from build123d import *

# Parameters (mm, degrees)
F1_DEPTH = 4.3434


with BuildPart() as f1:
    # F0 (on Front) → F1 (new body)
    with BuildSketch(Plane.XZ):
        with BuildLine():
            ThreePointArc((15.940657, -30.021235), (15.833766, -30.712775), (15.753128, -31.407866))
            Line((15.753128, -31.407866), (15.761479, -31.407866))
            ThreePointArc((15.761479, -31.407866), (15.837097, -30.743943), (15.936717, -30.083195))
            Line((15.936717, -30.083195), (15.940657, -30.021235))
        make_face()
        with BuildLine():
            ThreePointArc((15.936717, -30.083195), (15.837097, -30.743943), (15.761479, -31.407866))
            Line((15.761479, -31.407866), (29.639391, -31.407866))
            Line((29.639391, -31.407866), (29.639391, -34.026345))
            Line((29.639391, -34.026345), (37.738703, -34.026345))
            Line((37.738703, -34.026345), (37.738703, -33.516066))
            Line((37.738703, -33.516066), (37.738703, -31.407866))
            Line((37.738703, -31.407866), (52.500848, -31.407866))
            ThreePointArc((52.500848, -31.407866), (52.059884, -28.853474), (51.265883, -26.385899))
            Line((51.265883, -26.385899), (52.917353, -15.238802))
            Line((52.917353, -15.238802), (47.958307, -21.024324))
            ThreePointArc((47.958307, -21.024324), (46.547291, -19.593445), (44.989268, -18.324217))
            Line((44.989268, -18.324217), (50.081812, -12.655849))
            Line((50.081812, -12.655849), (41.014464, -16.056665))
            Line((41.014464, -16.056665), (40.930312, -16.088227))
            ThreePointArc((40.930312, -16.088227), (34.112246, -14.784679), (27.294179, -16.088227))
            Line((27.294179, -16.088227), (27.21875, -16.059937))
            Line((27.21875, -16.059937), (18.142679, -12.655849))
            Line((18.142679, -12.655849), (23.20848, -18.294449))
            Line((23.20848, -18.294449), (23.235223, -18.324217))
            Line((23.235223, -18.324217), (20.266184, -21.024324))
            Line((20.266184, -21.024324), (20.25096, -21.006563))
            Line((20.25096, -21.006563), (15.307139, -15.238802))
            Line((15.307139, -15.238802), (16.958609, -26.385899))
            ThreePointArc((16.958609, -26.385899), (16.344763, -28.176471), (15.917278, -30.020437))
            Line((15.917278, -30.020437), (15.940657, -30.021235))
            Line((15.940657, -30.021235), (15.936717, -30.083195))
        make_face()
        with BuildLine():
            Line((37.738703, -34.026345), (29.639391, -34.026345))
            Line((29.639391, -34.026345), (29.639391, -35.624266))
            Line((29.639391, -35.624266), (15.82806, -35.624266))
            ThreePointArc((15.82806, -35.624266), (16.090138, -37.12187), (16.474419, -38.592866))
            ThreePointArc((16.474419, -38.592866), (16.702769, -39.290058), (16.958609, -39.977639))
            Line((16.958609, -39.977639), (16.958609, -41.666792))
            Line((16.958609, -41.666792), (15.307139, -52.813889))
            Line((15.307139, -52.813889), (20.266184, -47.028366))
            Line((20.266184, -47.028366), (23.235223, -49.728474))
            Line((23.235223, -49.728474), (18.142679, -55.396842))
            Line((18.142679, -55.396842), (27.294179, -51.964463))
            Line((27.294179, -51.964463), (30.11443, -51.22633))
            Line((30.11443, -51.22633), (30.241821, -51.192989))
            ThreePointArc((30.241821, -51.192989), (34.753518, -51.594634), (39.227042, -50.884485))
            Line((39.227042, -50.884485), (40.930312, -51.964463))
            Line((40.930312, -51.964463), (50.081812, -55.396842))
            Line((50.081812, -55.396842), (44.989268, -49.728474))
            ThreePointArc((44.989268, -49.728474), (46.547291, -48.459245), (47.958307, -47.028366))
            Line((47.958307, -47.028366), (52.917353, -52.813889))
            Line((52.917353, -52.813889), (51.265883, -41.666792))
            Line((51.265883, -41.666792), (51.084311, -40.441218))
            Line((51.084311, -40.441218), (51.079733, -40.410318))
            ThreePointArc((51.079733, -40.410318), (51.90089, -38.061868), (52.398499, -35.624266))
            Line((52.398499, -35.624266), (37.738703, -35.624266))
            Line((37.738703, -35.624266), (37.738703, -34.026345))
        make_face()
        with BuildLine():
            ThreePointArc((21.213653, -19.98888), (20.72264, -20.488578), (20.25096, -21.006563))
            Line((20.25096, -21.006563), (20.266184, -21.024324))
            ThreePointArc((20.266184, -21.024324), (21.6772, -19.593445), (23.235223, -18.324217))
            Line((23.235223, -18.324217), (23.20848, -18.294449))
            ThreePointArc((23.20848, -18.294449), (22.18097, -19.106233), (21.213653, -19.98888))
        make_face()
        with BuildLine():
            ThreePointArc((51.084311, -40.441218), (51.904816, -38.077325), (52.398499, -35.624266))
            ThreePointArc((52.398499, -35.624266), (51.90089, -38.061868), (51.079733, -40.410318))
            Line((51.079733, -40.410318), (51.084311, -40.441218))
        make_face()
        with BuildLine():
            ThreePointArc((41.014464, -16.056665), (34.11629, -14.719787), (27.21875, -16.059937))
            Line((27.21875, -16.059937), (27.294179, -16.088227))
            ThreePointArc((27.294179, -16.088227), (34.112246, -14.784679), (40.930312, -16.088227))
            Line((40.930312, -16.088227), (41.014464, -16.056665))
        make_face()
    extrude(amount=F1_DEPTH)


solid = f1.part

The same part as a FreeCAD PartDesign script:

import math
import FreeCAD as App
import Part
import Sketcher

V = App.Vector
Q = App.Units.Quantity

doc = App.newDocument("Part")
body = doc.addObject("PartDesign::Body", "Body")

# Sketch on XZ plane
sketch1 = doc.addObject("Sketcher::SketchObject", "Sketch")
body.addObject(sketch1)
sketch1.AttachmentSupport = (doc.XZ_Plane, [""])
sketch1.MapMode = "FlatFace"
sketch1.addGeometry([
    Part.ArcOfCircle(Part.Circle(V(34.15005, -33.189883, 0), V(0, 0, 1), 18.483028), math.radians(170.128705), math.radians(174.467308)),  # 0
    Part.LineSegment(V(15.753128, -31.407866, 0), V(29.639391, -31.407866, 0)),  # 1
    Part.LineSegment(V(29.639391, -31.407866, 0), V(29.639391, -35.624266, 0)),  # 2
    Part.LineSegment(V(29.639391, -35.624266, 0), V(15.82806, -35.624266, 0)),  # 3
    Part.ArcOfCircle(Part.Circle(V(34.149253, -33.189824, 0), V(0, 0, 1), 18.482224), math.radians(-172.431118), math.radians(-163.002066)),  # 4
    Part.ArcOfCircle(Part.Circle(V(34.148866, -33.189979, 0), V(0, 0, 1), 18.481809), math.radians(-163.002174), math.radians(-158.453163)),  # 5
    Part.LineSegment(V(16.958609, -39.977639, 0), V(16.958609, -41.666792, 0)),  # 6
    Part.LineSegment(V(16.958609, -41.666792, 0), V(15.307139, -52.813889, 0)),  # 7
    Part.LineSegment(V(15.307139, -52.813889, 0), V(20.266184, -47.028366, 0)),  # 8
    Part.LineSegment(V(20.266184, -47.028366, 0), V(23.235223, -49.728474, 0)),  # 9
    Part.LineSegment(V(23.235223, -49.728474, 0), V(18.142679, -55.396842, 0)),  # 10
    Part.LineSegment(V(18.142679, -55.396842, 0), V(27.294179, -51.964463, 0)),  # 11
    Part.LineSegment(V(27.294179, -51.964463, 0), V(30.11443, -51.22633, 0)),  # 12
    Part.LineSegment(V(30.11443, -51.22633, 0), V(30.241821, -51.192989, 0)),  # 13
    Part.ArcOfCircle(Part.Circle(V(34.120663, -33.162649, 0), V(0, 0, 1), 18.442846), math.radians(-102.140923), math.radians(-73.926166)),  # 14
    Part.LineSegment(V(39.227042, -50.884485, 0), V(40.930312, -51.964463, 0)),  # 15
    Part.LineSegment(V(40.930312, -51.964463, 0), V(50.081812, -55.396842, 0)),  # 16
    Part.LineSegment(V(50.081812, -55.396842, 0), V(44.989268, -49.728474, 0)),  # 17
    Part.ArcOfCircle(Part.Circle(V(34.112224, -34.785644, 0), V(0, 0, 1), 18.482376), math.radians(-53.948732), math.radians(-41.48315)),  # 18
    Part.LineSegment(V(47.958307, -47.028366, 0), V(52.917353, -52.813889, 0)),  # 19
    Part.LineSegment(V(52.917353, -52.813889, 0), V(51.265883, -41.666792, 0)),  # 20
    Part.LineSegment(V(51.265883, -41.666792, 0), V(51.084311, -40.441218, 0)),  # 21
    Part.ArcOfCircle(Part.Circle(V(34.07414, -33.212659, 0), V(0, 0, 1), 18.482369), math.radians(-23.023313), math.radians(-7.497416)),  # 22
    Part.LineSegment(V(52.398499, -35.624266, 0), V(37.738703, -35.624266, 0)),  # 23
    Part.LineSegment(V(37.738703, -35.624266, 0), V(37.738703, -31.407866, 0)),  # 24
    Part.LineSegment(V(37.738703, -31.407866, 0), V(52.500848, -31.407866, 0)),  # 25
    Part.ArcOfCircle(Part.Circle(V(34.112208, -33.267034, 0), V(0, 0, 1), 18.482386), math.radians(5.773224), math.radians(21.858012)),  # 26
    Part.LineSegment(V(51.265883, -26.385899, 0), V(52.917353, -15.238802, 0)),  # 27
    Part.LineSegment(V(52.917353, -15.238802, 0), V(47.958307, -21.024324, 0)),  # 28
    Part.ArcOfCircle(Part.Circle(V(34.112273, -33.266998, 0), V(0, 0, 1), 18.482308), math.radians(41.483139), math.radians(53.948764)),  # 29
    Part.LineSegment(V(44.989268, -18.324217, 0), V(50.081812, -12.655849, 0)),  # 30
    Part.LineSegment(V(50.081812, -12.655849, 0), V(41.014464, -16.056665, 0)),  # 31
    Part.ArcOfCircle(Part.Circle(V(34.120664, -33.162646, 0), V(0, 0, 1), 18.44286), math.radians(68.050307), math.radians(111.976872)),  # 32
    Part.LineSegment(V(27.21875, -16.059937, 0), V(18.142679, -12.655849, 0)),  # 33
    Part.LineSegment(V(18.142679, -12.655849, 0), V(23.20848, -18.294449, 0)),  # 34
    Part.ArcOfCircle(Part.Circle(V(34.120687, -33.162674, 0), V(0, 0, 1), 18.442895), math.radians(126.27599), math.radians(134.413988)),  # 35
    Part.ArcOfCircle(Part.Circle(V(34.120568, -33.162555, 0), V(0, 0, 1), 18.442727), math.radians(134.413983), math.radians(138.767116)),  # 36
    Part.LineSegment(V(20.25096, -21.006563, 0), V(15.307139, -15.238802, 0)),  # 37
    Part.LineSegment(V(15.307139, -15.238802, 0), V(16.958609, -26.385899, 0)),  # 38
    Part.ArcOfCircle(Part.Circle(V(34.112163, -33.267006, 0), V(0, 0, 1), 18.482263), math.radians(158.141929), math.radians(169.883011)),  # 39
    Part.LineSegment(V(15.917278, -30.020437, 0), V(15.940657, -30.021235, 0)),  # 40
    Part.LineSegment(V(23.235223, -18.324217, 0), V(20.266184, -21.024324, 0)),  # 41
    Part.ArcOfCircle(Part.Circle(V(34.112218, -33.266998, 0), V(0, 0, 1), 18.482308), math.radians(126.051236), math.radians(138.516861)),  # 42
], False)
sketch1.addConstraint([
    Sketcher.Constraint("Coincident", 0, 2, 1, 1),
    Sketcher.Constraint("Coincident", 1, 2, 2, 1),
    Sketcher.Constraint("Coincident", 2, 2, 3, 1),
    Sketcher.Constraint("Coincident", 3, 2, 4, 1),
    Sketcher.Constraint("Coincident", 4, 2, 5, 1),
    Sketcher.Constraint("Coincident", 5, 2, 6, 1),
    Sketcher.Constraint("Coincident", 6, 2, 7, 1),
    Sketcher.Constraint("Coincident", 7, 2, 8, 1),
    Sketcher.Constraint("Coincident", 8, 2, 9, 1),
    Sketcher.Constraint("Coincident", 9, 2, 10, 1),
    Sketcher.Constraint("Coincident", 10, 2, 11, 1),
    Sketcher.Constraint("Coincident", 11, 2, 12, 1),
    Sketcher.Constraint("Coincident", 12, 2, 13, 1),
    Sketcher.Constraint("Coincident", 13, 2, 14, 1),
    Sketcher.Constraint("Coincident", 14, 2, 15, 1),
    Sketcher.Constraint("Coincident", 15, 2, 16, 1),
    Sketcher.Constraint("Coincident", 16, 2, 17, 1),
    Sketcher.Constraint("Coincident", 17, 2, 18, 1),
    Sketcher.Constraint("Coincident", 18, 2, 19, 1),
    Sketcher.Constraint("Coincident", 19, 2, 20, 1),
    Sketcher.Constraint("Coincident", 20, 2, 21, 1),
    Sketcher.Constraint("Coincident", 21, 2, 22, 1),
    Sketcher.Constraint("Coincident", 22, 2, 23, 1),
    Sketcher.Constraint("Coincident", 23, 2, 24, 1),
    Sketcher.Constraint("Coincident", 24, 2, 25, 1),
    Sketcher.Constraint("Coincident", 25, 2, 26, 1),
    Sketcher.Constraint("Coincident", 26, 2, 27, 1),
    Sketcher.Constraint("Coincident", 27, 2, 28, 1),
    Sketcher.Constraint("Coincident", 28, 2, 29, 1),
    Sketcher.Constraint("Coincident", 29, 2, 30, 1),
    Sketcher.Constraint("Coincident", 30, 2, 31, 1),
    Sketcher.Constraint("Coincident", 31, 2, 32, 1),
    Sketcher.Constraint("Coincident", 32, 2, 33, 1),
    Sketcher.Constraint("Coincident", 33, 2, 34, 1),
    Sketcher.Constraint("Coincident", 34, 2, 35, 1),
    Sketcher.Constraint("Coincident", 35, 2, 36, 1),
    Sketcher.Constraint("Coincident", 36, 2, 37, 1),
    Sketcher.Constraint("Coincident", 37, 2, 38, 1),
    Sketcher.Constraint("Coincident", 38, 2, 39, 1),
    Sketcher.Constraint("Coincident", 39, 2, 40, 1),
    Sketcher.Constraint("Coincident", 40, 2, 0, 1),
    Sketcher.Constraint("Coincident", 41, 1, 42, 1),
    Sketcher.Constraint("Coincident", 42, 2, 41, 2),
    Sketcher.Constraint("Horizontal", 1),
    Sketcher.Constraint("Vertical", 2),
    Sketcher.Constraint("Horizontal", 3),
    Sketcher.Constraint("Vertical", 6),
    Sketcher.Constraint("Horizontal", 23),
    Sketcher.Constraint("Vertical", 24),
    Sketcher.Constraint("Horizontal", 25),
    Sketcher.Constraint("Coincident", 32, 3, 14, 3),
    Sketcher.Constraint("Distance", 8, Q("0.3 in")),
    Sketcher.Constraint("Distance", 10, Q("0.3 in")),
    Sketcher.Constraint("Distance", 17, Q("0.3 in")),
    Sketcher.Constraint("Distance", 19, Q("0.3 in")),
    Sketcher.Constraint("Distance", 28, Q("0.3 in")),
    Sketcher.Constraint("Distance", 30, Q("0.3 in")),
    Sketcher.Constraint("DistanceY", 2, 2, 2, 1, Q("0.166 in")),
    Sketcher.Constraint("DistanceY", 24, 1, 24, 2, Q("0.166 in")),
    Sketcher.Constraint("Distance", 9, Q("0.158 in")),
    Sketcher.Constraint("Distance", 41, Q("0.158 in")),
    Sketcher.Constraint("Radius", 0, 18.483028),
    Sketcher.Constraint("Radius", 5, 18.481809),
    Sketcher.Constraint("Radius", 22, 18.482369),
    Sketcher.Constraint("Radius", 29, 18.482308),
    Sketcher.Constraint("Radius", 32, 18.44286),
    Sketcher.Constraint("Radius", 42, 18.482308),
    Sketcher.Constraint("Radius", 4, 18.482224),
    Sketcher.Constraint("Radius", 14, 18.442846),
    Sketcher.Constraint("Radius", 18, 18.482376),
    Sketcher.Constraint("Radius", 26, 18.482386),
    Sketcher.Constraint("Radius", 35, 18.442895),
    Sketcher.Constraint("Radius", 36, 18.442727),
    Sketcher.Constraint("Radius", 39, 18.482263),
    Sketcher.Constraint("DistanceY", 0, 2, 36, 2, Q("0.4095001 in")),
    Sketcher.Constraint("Distance", 15, 2.0168),
    Sketcher.Constraint("DistanceX", 3, 2, 3, 1, 13.811331),
    Sketcher.Constraint("DistanceX", -1, 1, 22, 2, 52.398499),
    Sketcher.Constraint("DistanceY", 26, 2, -1, 1, 26.385899),
    Sketcher.Constraint("DistanceY", 38, 2, -1, 1, 26.385899),
    Sketcher.Constraint("DistanceY", 4, 2, 3, 2, 2.9686),
    Sketcher.Constraint("DistanceY", 8, 2, 4, 2, 8.4355),
    Sketcher.Constraint("DistanceX", 10, 2, 11, 2, 9.1515),
    Sketcher.Constraint("DistanceX", 9, 2, 13, 2, 7.006598),
    Sketcher.Constraint("DistanceX", 15, 2, 16, 2, 9.1515),
    Sketcher.Constraint("DistanceX", 16, 2, 21, 2, 1.002499),
    Sketcher.Constraint("DistanceY", 18, 2, 22, 2, 11.4041),
    Sketcher.Constraint("DistanceX", 33, 2, 34, 2, 5.065801),
    Sketcher.Constraint("DistanceY", 34, 2, 33, 2, 5.6386),
    Sketcher.Constraint("Distance", 13, 0.131682),
    Sketcher.Constraint("Distance", 21, 1.238951),
    Sketcher.Constraint("Distance", 31, 9.684129),
    Sketcher.Constraint("DistanceX", 1, 1, 1, 2, 13.886263),
    Sketcher.Constraint("DistanceX", 23, 2, 23, 1, 14.659796),
    Sketcher.Constraint("DistanceX", 25, 1, 25, 2, 14.762145),
    Sketcher.Constraint("DistanceY", 6, 2, 6, 1, 1.689153),
    Sketcher.Constraint("DistanceX", -1, 1, 0, 3, 34.15005),
    Sketcher.Constraint("DistanceY", 5, 3, -1, 1, 33.189979),
    Sketcher.Constraint("DistanceY", 14, 3, -1, 1, 33.162649),
    Sketcher.Constraint("DistanceX", -1, 1, 22, 3, 34.07414),
    Sketcher.Constraint("DistanceY", 22, 3, -1, 1, 33.212659),
    Sketcher.Constraint("DistanceX", -1, 1, 36, 3, 34.120568),
    Sketcher.Constraint("DistanceX", -1, 1, 1, 2, 29.639391),
    Sketcher.Constraint("DistanceX", -1, 1, 4, 2, 16.474419),
    Sketcher.Constraint("DistanceX", -1, 1, 5, 2, 16.958609),
    Sketcher.Constraint("DistanceY", 5, 2, -1, 1, 39.977639),
    Sketcher.Constraint("DistanceX", -1, 1, 7, 2, 15.307139),
    Sketcher.Constraint("DistanceY", 7, 2, -1, 1, 52.813889),
    Sketcher.Constraint("DistanceX", -1, 1, 10, 2, 18.142679),
    Sketcher.Constraint("DistanceX", -1, 1, 12, 2, 30.11443),
    Sketcher.Constraint("DistanceY", 12, 2, -1, 1, 51.22633),
    Sketcher.Constraint("DistanceX", -1, 1, 13, 2, 30.241821),
    Sketcher.Constraint("DistanceX", -1, 1, 14, 2, 39.227042),
    Sketcher.Constraint("DistanceX", -1, 1, 17, 2, 44.989268),
    Sketcher.Constraint("DistanceY", 19, 2, -1, 1, 52.813889),
    Sketcher.Constraint("DistanceX", -1, 1, 21, 2, 51.084311),
    Sketcher.Constraint("DistanceX", -1, 1, 29, 2, 44.989268),
    Sketcher.Constraint("DistanceY", 30, 2, -1, 1, 12.655849),
    Sketcher.Constraint("DistanceX", -1, 1, 32, 2, 27.21875),
    Sketcher.Constraint("DistanceX", -1, 1, 33, 2, 18.142679),
    Sketcher.Constraint("DistanceY", 33, 2, -1, 1, 12.655849),
    Sketcher.Constraint("DistanceY", 35, 2, -1, 1, 19.98888),
    Sketcher.Constraint("DistanceX", -1, 1, 36, 2, 20.25096),
    Sketcher.Constraint("DistanceX", -1, 1, 37, 2, 15.307139),
    Sketcher.Constraint("DistanceX", -1, 1, 38, 2, 16.958609),
    Sketcher.Constraint("DistanceX", -1, 1, 39, 2, 15.917278),
    Sketcher.Constraint("DistanceX", 18, 3, 5, 3, 0.036642),
    Sketcher.Constraint("DistanceY", 18, 3, 0, 3, 1.595761),
    Sketcher.Constraint("DistanceX", 26, 3, 5, 3, 0.036658),
    Sketcher.Constraint("DistanceY", 29, 3, 22, 3, 0.054339),
    Sketcher.Constraint("DistanceX", 29, 3, 4, 3, 0.036979),
    Sketcher.Constraint("DistanceX", 39, 3, 29, 3, 0.00011),
    Sketcher.Constraint("DistanceY", 42, 3, 22, 3, 0.054339),
    Sketcher.Constraint("DistanceX", 42, 3, 5, 3, 0.036648),
    Sketcher.Constraint("DistanceY", 11, 2, 9, 2, 2.235989),
    Sketcher.Constraint("DistanceY", 17, 2, 20, 2, 8.061682),
    Sketcher.Constraint("DistanceX", 26, 2, 27, 2, 1.65147),
    Sketcher.Constraint("DistanceX", 28, 2, 25, 2, 4.542541),
    Sketcher.Constraint("DistanceY", 35, 2, 37, 2, 4.750078),
    Sketcher.Constraint("DistanceX", 39, 2, 40, 2, 0.023379),
    Sketcher.Constraint("DistanceY", 41, 1, 34, 2, 0.029768),
])
pad1 = doc.addObject("PartDesign::Pad", "Pad")
body.addObject(pad1)
pad1.Profile = sketch1
pad1.Length = Q("0.171 in")

doc.recompute()
